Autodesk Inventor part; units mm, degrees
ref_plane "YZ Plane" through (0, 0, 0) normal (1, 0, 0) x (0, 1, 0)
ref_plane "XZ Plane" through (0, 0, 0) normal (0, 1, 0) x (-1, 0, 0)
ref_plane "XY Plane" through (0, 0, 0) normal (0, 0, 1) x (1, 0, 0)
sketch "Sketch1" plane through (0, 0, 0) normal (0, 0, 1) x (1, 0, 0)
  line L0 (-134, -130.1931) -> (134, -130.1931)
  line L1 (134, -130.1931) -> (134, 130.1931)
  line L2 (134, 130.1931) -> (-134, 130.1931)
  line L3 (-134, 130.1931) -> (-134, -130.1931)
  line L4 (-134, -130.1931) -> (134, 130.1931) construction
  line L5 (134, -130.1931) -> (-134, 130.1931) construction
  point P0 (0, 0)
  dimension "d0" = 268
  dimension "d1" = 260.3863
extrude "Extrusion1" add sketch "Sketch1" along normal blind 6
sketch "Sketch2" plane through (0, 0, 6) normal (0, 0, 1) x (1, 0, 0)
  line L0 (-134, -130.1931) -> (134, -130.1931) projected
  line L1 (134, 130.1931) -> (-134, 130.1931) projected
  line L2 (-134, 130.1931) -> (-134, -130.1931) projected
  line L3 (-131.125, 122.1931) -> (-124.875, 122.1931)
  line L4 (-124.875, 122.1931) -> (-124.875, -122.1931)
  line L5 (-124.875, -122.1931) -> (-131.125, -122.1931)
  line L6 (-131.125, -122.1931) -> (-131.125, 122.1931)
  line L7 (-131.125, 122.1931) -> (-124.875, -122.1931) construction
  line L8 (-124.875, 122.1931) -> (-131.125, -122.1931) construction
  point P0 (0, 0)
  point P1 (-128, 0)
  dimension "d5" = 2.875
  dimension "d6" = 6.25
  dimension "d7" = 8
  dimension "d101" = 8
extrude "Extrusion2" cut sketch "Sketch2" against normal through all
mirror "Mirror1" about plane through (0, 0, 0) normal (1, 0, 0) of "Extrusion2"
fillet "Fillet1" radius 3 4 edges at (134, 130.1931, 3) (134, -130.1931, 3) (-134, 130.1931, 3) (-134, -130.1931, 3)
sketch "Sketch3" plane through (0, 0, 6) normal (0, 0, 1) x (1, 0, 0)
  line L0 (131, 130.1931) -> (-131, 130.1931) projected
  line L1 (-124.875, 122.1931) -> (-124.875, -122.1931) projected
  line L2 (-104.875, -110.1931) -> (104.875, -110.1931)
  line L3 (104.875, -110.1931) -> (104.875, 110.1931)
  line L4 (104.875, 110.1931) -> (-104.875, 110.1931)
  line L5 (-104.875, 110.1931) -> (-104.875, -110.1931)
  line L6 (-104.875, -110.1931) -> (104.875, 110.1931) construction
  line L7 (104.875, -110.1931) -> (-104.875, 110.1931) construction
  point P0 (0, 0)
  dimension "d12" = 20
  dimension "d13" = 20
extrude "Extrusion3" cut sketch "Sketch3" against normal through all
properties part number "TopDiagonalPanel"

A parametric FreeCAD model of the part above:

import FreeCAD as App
import Part
import Sketcher
from FreeCAD import Vector


def edges_at(feature, points):
    """Names of the edges that pass closest to the given points."""
    edges = feature.Shape.Edges
    near = lambda p: min(range(len(edges)), key=lambda i: edges[i].distToShape(Part.Vertex(*p))[0])
    return sorted({f"Edge{near(p) + 1}" for p in points})


def add_polygon(sketch, points):
    """Adds a closed chain of lines whose ends are joined by coincident constraints."""
    first, n = sketch.GeometryCount, len(points)
    for a, b in zip(points, points[1:] + points[:1]):
        sketch.addGeometry(Part.LineSegment(App.Vector(*a, 0), App.Vector(*b, 0)), False)
    for i in range(n):
        sketch.addConstraint(Sketcher.Constraint("Coincident", first + i, 2, first + (i + 1) % n, 1))

doc = App.newDocument("Part")
body = doc.addObject("PartDesign::Body", "Body")

# Sketch on XY plane
sketch1 = doc.addObject("Sketcher::SketchObject", "Sketch")
body.addObject(sketch1)
sketch1.AttachmentSupport = (doc.XY_Plane, [""])
sketch1.MapMode = "FlatFace"
add_polygon(sketch1, [(-134, 130), (-134, -130), (134, -130), (134, 130)])  # lines 0-3
sketch1.addConstraint(Sketcher.Constraint("Vertical", 0))
sketch1.addConstraint(Sketcher.Constraint("Horizontal", 1))
sketch1.addConstraint(Sketcher.Constraint("Vertical", 2))
sketch1.addConstraint(Sketcher.Constraint("Horizontal", 3))
sketch1.addConstraint(Sketcher.Constraint("Symmetric", 0, 2, 2, 2, -1, 1))
sketch1.addConstraint(Sketcher.Constraint("DistanceX", 1, 1, 1, 2, 268.0))
sketch1.addConstraint(Sketcher.Constraint("DistanceY", 0, 2, 0, 1, 260.3862))
pad1 = doc.addObject("PartDesign::Pad", "Pad")
body.addObject(pad1)
pad1.Profile = sketch1
pad1.Length = 6

# Sketch on XY plane
sketch2 = doc.addObject("Sketcher::SketchObject", "Sketch001")
body.addObject(sketch2)
sketch2.AttachmentSupport = (doc.XY_Plane, [""])
sketch2.MapMode = "FlatFace"
sketch2.AttachmentOffset = App.Placement(Vector(0, 0, 6), App.Rotation())
add_polygon(sketch2, [(-125, 122), (-131, 122), (-131, -122), (-125, -122)])  # lines 0-3
sketch2.addConstraint(Sketcher.Constraint("Horizontal", 0))
sketch2.addConstraint(Sketcher.Constraint("Vertical", 1))
sketch2.addConstraint(Sketcher.Constraint("Horizontal", 2))
sketch2.addConstraint(Sketcher.Constraint("Vertical", 3))
sketch2.addConstraint(Sketcher.Constraint("DistanceX", 0, 2, 0, 1, 6.25))
sketch2.addConstraint(Sketcher.Constraint("DistanceY", 1, 2, 1, 1, 244.3862))
sketch2.addConstraint(Sketcher.Constraint("DistanceX", 0, 2, -1, 1, 131.125))
sketch2.addConstraint(Sketcher.Constraint("DistanceY", -1, 1, 0, 2, 122.193))
pocket1 = doc.addObject("PartDesign::Pocket", "Pocket")
body.addObject(pocket1)
pocket1.Profile = sketch2
pocket1.Type = "ThroughAll"
doc.recompute()

mirrored = doc.addObject("PartDesign::Mirrored", "Mirrored")
body.addObject(mirrored)
mirrored.Originals = [pocket1]
mirrored.MirrorPlane = (doc.YZ_Plane, [""])
body.Tip = mirrored
doc.recompute()

fillet = doc.addObject("PartDesign::Fillet", "Fillet")
body.addObject(fillet)
fillet.Base = (mirrored, edges_at(mirrored, [
    (134, 130.193, 3),
    (134, -130.193, 3),
    (-134, 130.193, 3),
    (-134, -130.193, 3),
]))
fillet.Radius = 3

# Sketch on XY plane
sketch3 = doc.addObject("Sketcher::SketchObject", "Sketch002")
body.addObject(sketch3)
sketch3.AttachmentSupport = (doc.XY_Plane, [""])
sketch3.MapMode = "FlatFace"
sketch3.AttachmentOffset = App.Placement(Vector(0, 0, 6), App.Rotation())
add_polygon(sketch3, [(-105, 110), (-105, -110), (105, -110), (105, 110)])  # lines 0-3
sketch3.addConstraint(Sketcher.Constraint("Vertical", 0))
sketch3.addConstraint(Sketcher.Constraint("Horizontal", 1))
sketch3.addConstraint(Sketcher.Constraint("Vertical", 2))
sketch3.addConstraint(Sketcher.Constraint("Horizontal", 3))
sketch3.addConstraint(Sketcher.Constraint("Symmetric", 0, 2, 2, 2, -1, 1))
sketch3.addConstraint(Sketcher.Constraint("DistanceX", 1, 1, 1, 2, 209.75))
sketch3.addConstraint(Sketcher.Constraint("DistanceY", 0, 2, 0, 1, 220.3862))
pocket2 = doc.addObject("PartDesign::Pocket", "Pocket001")
body.addObject(pocket2)
pocket2.Profile = sketch3
pocket2.Type = "ThroughAll"

doc.recompute()
